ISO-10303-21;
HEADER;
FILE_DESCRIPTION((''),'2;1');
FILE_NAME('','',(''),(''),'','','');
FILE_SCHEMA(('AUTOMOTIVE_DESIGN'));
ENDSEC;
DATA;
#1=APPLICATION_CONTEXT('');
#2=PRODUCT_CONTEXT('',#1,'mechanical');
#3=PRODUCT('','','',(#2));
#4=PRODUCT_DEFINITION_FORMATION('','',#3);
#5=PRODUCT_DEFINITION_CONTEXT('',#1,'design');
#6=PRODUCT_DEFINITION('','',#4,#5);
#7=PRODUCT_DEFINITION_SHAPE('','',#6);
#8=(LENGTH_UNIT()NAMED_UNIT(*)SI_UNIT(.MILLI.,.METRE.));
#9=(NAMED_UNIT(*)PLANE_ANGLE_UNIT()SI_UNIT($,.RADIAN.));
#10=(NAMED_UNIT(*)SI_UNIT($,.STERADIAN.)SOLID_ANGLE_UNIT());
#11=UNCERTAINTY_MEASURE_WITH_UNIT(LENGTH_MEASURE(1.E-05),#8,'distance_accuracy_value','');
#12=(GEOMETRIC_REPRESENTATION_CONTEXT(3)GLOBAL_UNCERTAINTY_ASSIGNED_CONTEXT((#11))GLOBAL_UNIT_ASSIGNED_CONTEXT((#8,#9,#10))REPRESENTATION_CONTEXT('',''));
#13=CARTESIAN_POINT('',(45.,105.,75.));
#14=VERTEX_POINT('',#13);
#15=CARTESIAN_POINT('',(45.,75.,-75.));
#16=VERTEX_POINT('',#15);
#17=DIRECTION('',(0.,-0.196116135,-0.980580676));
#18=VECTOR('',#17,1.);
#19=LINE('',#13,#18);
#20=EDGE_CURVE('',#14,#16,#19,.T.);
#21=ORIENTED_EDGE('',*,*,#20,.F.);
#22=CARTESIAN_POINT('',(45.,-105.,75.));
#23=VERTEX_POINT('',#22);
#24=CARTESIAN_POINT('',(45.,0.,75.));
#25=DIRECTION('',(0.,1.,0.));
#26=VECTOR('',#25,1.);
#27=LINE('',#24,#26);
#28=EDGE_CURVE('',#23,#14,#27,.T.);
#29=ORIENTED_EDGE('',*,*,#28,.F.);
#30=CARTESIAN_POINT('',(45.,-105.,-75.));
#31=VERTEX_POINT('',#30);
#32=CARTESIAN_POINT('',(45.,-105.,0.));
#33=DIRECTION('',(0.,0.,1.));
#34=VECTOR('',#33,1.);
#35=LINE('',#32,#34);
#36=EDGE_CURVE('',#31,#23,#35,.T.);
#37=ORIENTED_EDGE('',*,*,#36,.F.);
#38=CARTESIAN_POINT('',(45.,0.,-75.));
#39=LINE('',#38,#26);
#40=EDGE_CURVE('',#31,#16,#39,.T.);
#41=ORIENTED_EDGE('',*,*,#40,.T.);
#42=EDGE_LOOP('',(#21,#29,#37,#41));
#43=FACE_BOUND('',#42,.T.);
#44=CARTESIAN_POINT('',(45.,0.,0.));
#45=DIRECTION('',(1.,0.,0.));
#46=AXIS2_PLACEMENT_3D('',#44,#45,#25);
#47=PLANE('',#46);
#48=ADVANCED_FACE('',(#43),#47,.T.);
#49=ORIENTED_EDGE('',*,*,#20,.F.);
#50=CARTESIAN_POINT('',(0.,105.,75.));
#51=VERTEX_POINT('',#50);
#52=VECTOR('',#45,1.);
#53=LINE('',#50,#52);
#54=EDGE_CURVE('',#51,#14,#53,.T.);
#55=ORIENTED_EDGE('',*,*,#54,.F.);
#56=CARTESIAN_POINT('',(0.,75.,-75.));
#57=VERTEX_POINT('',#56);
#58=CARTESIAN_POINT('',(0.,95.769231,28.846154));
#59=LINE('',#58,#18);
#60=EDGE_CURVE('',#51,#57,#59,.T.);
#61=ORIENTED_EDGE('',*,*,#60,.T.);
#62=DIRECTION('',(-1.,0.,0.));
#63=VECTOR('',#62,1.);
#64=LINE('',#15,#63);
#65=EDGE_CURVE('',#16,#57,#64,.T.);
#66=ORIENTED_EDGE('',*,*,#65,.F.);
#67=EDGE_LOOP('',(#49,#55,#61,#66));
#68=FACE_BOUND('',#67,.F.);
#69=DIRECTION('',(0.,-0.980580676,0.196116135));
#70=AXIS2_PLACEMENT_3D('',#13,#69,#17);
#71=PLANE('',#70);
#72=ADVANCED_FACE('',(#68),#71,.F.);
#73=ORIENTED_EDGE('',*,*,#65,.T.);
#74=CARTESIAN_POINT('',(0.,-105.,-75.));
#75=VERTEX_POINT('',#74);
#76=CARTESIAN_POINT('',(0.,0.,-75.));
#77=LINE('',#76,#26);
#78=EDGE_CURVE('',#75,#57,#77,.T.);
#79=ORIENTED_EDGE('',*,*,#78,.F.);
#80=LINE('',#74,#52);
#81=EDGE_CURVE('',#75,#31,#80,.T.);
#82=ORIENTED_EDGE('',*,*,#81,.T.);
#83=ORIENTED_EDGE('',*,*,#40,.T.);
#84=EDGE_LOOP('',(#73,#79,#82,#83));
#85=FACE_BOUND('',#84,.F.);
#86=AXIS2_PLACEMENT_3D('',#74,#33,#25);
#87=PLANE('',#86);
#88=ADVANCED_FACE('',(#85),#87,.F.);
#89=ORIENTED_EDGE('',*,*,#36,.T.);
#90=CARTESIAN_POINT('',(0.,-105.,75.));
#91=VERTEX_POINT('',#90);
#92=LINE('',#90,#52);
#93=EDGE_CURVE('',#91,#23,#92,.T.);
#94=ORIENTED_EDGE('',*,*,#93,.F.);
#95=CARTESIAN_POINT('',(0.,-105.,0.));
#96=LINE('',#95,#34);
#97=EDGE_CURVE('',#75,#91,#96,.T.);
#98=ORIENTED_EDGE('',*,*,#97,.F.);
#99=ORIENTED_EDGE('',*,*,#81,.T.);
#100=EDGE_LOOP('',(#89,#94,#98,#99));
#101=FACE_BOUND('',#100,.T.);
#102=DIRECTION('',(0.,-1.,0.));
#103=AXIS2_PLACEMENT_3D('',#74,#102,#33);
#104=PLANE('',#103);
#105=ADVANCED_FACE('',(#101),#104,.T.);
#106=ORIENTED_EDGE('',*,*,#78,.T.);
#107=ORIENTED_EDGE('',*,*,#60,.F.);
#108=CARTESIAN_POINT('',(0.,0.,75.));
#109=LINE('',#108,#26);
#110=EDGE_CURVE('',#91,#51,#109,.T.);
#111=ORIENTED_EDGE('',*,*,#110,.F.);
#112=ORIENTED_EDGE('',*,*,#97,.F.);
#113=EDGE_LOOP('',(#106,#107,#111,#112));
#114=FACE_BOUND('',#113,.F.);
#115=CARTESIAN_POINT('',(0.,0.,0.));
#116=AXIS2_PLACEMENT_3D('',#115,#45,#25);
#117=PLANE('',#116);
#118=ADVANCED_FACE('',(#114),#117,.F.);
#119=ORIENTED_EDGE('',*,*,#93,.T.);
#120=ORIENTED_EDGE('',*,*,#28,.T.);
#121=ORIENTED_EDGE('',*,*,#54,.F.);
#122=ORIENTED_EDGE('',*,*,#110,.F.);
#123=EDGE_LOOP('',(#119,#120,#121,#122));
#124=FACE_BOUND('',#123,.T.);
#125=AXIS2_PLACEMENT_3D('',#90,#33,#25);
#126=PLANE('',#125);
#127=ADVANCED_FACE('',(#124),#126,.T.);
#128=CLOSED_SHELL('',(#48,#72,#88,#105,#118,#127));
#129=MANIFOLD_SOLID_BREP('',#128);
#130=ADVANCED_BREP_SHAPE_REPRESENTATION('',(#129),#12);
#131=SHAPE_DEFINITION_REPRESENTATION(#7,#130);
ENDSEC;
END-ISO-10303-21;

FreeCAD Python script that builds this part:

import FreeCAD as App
import Part
import Sketcher
Q = App.Units.Quantity


def add_polygon(sketch, points):
    """Adds a closed chain of lines whose ends are joined by coincident constraints."""
    first, n = sketch.GeometryCount, len(points)
    for a, b in zip(points, points[1:] + points[:1]):
        sketch.addGeometry(Part.LineSegment(App.Vector(*a, 0), App.Vector(*b, 0)), False)
    for i in range(n):
        sketch.addConstraint(Sketcher.Constraint("Coincident", first + i, 2, first + (i + 1) % n, 1))

doc = App.newDocument("Part")
body = doc.addObject("PartDesign::Body", "Body")

# Sketch on YZ plane
sketch1 = body.newObject("Sketcher::SketchObject", "Sketch")
sketch1.AttachmentSupport = (doc.getObject("YZ_Plane"), [""])
sketch1.MapMode = "FlatFace"
add_polygon(sketch1, [(-105, 75), (-105, -75), (105, -75), (105, 75)])  # lines 0-3
sketch1.addConstraint(Sketcher.Constraint("Vertical", 0))
sketch1.addConstraint(Sketcher.Constraint("Horizontal", 1))
sketch1.addConstraint(Sketcher.Constraint("Vertical", 2))
sketch1.addConstraint(Sketcher.Constraint("Horizontal", 3))
sketch1.addConstraint(Sketcher.Constraint("Symmetric", 0, 2, 2, 2, -1, 1))
sketch1.addConstraint(Sketcher.Constraint("DistanceX", 1, 1, 1, 2, Q("210 mm")))
sketch1.addConstraint(Sketcher.Constraint("DistanceY", 0, 2, 0, 1, Q("150 mm")))
pad1 = body.newObject("PartDesign::Pad", "Pad")
pad1.Profile = sketch1
pad1.Length = 45

# Sketch on YZ plane
sketch2 = body.newObject("Sketcher::SketchObject", "Sketch001")
sketch2.AttachmentSupport = (doc.getObject("YZ_Plane"), [""])
sketch2.MapMode = "FlatFace"
sketch2.AttachmentOffset = App.Placement(App.Vector(0, 0, 45), App.Rotation())
add_polygon(sketch2, [(105, 75), (75, -75), (105, -75)])  # lines 0-2
sketch2.addConstraint(Sketcher.Constraint("Horizontal", 1))
sketch2.addConstraint(Sketcher.Constraint("Vertical", 2))
sketch2.addConstraint(Sketcher.Constraint("DistanceX", 1, 1, 1, 2, Q("30 mm")))
sketch2.addConstraint(Sketcher.Constraint("DistanceY", 2, 1, 2, 2, Q("150 mm")))
sketch2.addConstraint(Sketcher.Constraint("DistanceX", -1, 1, 0, 2, Q("75 mm")))
sketch2.addConstraint(Sketcher.Constraint("DistanceY", 0, 2, -1, 1, Q("75 mm")))
pocket1 = body.newObject("PartDesign::Pocket", "Pocket")
pocket1.Profile = sketch2
pocket1.Length = 69.1

doc.recompute()
